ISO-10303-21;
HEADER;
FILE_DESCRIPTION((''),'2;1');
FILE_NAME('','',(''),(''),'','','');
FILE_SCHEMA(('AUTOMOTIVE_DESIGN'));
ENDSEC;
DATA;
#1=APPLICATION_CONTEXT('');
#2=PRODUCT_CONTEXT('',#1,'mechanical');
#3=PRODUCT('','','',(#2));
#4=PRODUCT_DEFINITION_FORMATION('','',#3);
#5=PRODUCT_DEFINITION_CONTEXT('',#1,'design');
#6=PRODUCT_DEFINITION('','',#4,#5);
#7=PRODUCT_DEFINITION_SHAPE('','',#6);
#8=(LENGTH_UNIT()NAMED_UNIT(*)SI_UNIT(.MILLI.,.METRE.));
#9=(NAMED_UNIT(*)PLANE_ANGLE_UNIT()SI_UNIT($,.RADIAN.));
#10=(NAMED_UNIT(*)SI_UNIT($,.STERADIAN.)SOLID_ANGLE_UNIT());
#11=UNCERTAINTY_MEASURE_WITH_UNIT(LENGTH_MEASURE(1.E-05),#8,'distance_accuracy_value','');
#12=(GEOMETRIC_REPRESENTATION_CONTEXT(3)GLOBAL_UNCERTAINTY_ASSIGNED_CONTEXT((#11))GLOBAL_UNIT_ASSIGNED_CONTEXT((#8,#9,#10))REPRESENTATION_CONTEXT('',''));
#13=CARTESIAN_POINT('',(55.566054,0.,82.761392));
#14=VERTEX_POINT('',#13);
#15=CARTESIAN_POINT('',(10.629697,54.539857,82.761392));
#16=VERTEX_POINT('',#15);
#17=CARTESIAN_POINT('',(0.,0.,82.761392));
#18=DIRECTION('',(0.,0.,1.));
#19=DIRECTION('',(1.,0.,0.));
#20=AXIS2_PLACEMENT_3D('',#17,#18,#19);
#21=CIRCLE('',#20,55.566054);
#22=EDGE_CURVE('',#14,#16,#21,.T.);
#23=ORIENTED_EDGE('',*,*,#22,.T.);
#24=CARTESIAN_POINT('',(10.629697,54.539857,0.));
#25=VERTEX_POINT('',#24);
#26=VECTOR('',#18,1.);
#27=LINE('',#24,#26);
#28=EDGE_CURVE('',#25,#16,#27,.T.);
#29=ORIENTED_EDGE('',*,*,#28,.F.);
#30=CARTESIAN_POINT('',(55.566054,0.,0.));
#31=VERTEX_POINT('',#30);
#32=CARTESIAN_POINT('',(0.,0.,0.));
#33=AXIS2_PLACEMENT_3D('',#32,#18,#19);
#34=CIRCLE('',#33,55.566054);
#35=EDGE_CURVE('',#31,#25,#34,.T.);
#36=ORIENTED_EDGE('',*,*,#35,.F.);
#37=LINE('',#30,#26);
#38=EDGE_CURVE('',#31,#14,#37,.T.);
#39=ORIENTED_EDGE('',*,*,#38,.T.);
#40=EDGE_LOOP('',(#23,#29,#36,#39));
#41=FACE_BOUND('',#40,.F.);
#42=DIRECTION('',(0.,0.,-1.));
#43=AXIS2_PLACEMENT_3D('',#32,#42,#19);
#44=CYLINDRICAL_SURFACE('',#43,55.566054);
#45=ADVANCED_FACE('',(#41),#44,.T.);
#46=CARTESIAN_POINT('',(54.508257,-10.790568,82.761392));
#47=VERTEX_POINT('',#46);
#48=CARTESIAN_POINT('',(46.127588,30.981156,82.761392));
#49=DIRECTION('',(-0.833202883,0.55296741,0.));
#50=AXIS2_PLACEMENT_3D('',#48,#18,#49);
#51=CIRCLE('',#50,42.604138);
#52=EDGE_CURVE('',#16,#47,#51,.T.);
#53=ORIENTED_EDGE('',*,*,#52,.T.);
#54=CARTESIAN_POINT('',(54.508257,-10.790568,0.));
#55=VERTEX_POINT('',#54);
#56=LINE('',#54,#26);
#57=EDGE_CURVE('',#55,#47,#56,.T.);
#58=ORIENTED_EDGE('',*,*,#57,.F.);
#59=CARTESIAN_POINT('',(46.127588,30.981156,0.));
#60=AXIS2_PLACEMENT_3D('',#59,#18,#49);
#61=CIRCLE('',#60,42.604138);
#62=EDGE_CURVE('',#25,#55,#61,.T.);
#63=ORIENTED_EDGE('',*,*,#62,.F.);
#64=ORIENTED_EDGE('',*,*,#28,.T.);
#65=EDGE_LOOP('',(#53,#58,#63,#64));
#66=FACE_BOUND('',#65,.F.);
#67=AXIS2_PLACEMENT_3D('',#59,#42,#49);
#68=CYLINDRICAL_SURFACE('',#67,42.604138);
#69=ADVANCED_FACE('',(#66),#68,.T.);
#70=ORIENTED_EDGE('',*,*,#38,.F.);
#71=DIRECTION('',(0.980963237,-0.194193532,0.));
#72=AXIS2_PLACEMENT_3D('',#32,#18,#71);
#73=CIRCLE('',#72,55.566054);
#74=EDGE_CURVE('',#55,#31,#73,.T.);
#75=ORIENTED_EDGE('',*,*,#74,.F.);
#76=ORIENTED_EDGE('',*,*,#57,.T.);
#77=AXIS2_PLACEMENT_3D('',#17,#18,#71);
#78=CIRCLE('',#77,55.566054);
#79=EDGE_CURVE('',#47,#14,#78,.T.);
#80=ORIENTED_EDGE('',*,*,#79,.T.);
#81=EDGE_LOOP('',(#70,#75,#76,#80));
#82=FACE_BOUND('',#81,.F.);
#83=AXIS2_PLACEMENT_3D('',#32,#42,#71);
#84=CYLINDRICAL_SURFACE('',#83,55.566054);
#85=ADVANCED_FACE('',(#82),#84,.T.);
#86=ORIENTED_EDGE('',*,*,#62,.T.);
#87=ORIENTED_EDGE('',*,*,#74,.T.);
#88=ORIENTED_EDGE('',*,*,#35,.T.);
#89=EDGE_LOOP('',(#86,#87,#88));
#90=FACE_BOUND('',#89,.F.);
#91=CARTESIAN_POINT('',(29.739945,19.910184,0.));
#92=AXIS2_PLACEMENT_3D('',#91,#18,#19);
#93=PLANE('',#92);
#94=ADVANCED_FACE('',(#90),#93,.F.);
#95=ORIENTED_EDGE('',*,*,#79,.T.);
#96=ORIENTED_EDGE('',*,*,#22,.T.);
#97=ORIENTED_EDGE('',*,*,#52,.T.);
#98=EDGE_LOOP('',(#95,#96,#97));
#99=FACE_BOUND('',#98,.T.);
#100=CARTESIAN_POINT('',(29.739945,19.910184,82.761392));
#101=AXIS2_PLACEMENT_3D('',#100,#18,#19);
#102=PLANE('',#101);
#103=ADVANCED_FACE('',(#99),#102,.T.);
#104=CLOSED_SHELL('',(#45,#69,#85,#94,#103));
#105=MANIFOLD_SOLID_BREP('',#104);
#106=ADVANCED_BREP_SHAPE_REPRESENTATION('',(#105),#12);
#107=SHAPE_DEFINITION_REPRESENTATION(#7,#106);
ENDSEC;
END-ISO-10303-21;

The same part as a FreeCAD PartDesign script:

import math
import FreeCAD as App
import Part
import Sketcher

doc = App.newDocument("Part")
body = doc.addObject("PartDesign::Body", "Body")

# Sketch on XY plane
sketch1 = doc.addObject("Sketcher::SketchObject", "Sketch")
body.addObject(sketch1)
sketch1.AttachmentSupport = (doc.XY_Plane, [""])
sketch1.MapMode = "FlatFace"
sketch1.addGeometry(Part.ArcOfCircle(Part.Circle(App.Vector(0, 0, 0), App.Vector(0, 0, 1), 56), math.radians(-11.2), math.radians(0)), False)
sketch1.addGeometry(Part.ArcOfCircle(Part.Circle(App.Vector(0, 0, 0), App.Vector(0, 0, 1), 56), math.radians(0), math.radians(79)), False)
sketch1.addGeometry(Part.ArcOfCircle(Part.Circle(App.Vector(46, 31, 0), App.Vector(0, 0, 1), 43), math.radians(146), math.radians(281)), False)
sketch1.addConstraint(Sketcher.Constraint("Tangent", 0, 2, 1, 1))
sketch1.addConstraint(Sketcher.Constraint("Coincident", 1, 2, 2, 1))
sketch1.addConstraint(Sketcher.Constraint("Coincident", 2, 2, 0, 1))
sketch1.addConstraint(Sketcher.Constraint("Coincident", 0, 3, -1, 1))
sketch1.addConstraint(Sketcher.Constraint("Equal", 0, 1))
sketch1.addConstraint(Sketcher.Constraint("PointOnObject", 0, 2, -1))
sketch1.addConstraint(Sketcher.Constraint("Radius", 2, 42.604138))
sketch1.addConstraint(Sketcher.Constraint("Radius", 0, 55.566054))
sketch1.addConstraint(Sketcher.Constraint("DistanceY", 2, 3, 1, 2, 23.5587))
sketch1.addConstraint(Sketcher.Constraint("DistanceY", 2, 2, -1, 1, 10.790568))
pad1 = doc.addObject("PartDesign::Pad", "Pad")
body.addObject(pad1)
pad1.Profile = sketch1
pad1.Length = 82.761392

doc.recompute()
